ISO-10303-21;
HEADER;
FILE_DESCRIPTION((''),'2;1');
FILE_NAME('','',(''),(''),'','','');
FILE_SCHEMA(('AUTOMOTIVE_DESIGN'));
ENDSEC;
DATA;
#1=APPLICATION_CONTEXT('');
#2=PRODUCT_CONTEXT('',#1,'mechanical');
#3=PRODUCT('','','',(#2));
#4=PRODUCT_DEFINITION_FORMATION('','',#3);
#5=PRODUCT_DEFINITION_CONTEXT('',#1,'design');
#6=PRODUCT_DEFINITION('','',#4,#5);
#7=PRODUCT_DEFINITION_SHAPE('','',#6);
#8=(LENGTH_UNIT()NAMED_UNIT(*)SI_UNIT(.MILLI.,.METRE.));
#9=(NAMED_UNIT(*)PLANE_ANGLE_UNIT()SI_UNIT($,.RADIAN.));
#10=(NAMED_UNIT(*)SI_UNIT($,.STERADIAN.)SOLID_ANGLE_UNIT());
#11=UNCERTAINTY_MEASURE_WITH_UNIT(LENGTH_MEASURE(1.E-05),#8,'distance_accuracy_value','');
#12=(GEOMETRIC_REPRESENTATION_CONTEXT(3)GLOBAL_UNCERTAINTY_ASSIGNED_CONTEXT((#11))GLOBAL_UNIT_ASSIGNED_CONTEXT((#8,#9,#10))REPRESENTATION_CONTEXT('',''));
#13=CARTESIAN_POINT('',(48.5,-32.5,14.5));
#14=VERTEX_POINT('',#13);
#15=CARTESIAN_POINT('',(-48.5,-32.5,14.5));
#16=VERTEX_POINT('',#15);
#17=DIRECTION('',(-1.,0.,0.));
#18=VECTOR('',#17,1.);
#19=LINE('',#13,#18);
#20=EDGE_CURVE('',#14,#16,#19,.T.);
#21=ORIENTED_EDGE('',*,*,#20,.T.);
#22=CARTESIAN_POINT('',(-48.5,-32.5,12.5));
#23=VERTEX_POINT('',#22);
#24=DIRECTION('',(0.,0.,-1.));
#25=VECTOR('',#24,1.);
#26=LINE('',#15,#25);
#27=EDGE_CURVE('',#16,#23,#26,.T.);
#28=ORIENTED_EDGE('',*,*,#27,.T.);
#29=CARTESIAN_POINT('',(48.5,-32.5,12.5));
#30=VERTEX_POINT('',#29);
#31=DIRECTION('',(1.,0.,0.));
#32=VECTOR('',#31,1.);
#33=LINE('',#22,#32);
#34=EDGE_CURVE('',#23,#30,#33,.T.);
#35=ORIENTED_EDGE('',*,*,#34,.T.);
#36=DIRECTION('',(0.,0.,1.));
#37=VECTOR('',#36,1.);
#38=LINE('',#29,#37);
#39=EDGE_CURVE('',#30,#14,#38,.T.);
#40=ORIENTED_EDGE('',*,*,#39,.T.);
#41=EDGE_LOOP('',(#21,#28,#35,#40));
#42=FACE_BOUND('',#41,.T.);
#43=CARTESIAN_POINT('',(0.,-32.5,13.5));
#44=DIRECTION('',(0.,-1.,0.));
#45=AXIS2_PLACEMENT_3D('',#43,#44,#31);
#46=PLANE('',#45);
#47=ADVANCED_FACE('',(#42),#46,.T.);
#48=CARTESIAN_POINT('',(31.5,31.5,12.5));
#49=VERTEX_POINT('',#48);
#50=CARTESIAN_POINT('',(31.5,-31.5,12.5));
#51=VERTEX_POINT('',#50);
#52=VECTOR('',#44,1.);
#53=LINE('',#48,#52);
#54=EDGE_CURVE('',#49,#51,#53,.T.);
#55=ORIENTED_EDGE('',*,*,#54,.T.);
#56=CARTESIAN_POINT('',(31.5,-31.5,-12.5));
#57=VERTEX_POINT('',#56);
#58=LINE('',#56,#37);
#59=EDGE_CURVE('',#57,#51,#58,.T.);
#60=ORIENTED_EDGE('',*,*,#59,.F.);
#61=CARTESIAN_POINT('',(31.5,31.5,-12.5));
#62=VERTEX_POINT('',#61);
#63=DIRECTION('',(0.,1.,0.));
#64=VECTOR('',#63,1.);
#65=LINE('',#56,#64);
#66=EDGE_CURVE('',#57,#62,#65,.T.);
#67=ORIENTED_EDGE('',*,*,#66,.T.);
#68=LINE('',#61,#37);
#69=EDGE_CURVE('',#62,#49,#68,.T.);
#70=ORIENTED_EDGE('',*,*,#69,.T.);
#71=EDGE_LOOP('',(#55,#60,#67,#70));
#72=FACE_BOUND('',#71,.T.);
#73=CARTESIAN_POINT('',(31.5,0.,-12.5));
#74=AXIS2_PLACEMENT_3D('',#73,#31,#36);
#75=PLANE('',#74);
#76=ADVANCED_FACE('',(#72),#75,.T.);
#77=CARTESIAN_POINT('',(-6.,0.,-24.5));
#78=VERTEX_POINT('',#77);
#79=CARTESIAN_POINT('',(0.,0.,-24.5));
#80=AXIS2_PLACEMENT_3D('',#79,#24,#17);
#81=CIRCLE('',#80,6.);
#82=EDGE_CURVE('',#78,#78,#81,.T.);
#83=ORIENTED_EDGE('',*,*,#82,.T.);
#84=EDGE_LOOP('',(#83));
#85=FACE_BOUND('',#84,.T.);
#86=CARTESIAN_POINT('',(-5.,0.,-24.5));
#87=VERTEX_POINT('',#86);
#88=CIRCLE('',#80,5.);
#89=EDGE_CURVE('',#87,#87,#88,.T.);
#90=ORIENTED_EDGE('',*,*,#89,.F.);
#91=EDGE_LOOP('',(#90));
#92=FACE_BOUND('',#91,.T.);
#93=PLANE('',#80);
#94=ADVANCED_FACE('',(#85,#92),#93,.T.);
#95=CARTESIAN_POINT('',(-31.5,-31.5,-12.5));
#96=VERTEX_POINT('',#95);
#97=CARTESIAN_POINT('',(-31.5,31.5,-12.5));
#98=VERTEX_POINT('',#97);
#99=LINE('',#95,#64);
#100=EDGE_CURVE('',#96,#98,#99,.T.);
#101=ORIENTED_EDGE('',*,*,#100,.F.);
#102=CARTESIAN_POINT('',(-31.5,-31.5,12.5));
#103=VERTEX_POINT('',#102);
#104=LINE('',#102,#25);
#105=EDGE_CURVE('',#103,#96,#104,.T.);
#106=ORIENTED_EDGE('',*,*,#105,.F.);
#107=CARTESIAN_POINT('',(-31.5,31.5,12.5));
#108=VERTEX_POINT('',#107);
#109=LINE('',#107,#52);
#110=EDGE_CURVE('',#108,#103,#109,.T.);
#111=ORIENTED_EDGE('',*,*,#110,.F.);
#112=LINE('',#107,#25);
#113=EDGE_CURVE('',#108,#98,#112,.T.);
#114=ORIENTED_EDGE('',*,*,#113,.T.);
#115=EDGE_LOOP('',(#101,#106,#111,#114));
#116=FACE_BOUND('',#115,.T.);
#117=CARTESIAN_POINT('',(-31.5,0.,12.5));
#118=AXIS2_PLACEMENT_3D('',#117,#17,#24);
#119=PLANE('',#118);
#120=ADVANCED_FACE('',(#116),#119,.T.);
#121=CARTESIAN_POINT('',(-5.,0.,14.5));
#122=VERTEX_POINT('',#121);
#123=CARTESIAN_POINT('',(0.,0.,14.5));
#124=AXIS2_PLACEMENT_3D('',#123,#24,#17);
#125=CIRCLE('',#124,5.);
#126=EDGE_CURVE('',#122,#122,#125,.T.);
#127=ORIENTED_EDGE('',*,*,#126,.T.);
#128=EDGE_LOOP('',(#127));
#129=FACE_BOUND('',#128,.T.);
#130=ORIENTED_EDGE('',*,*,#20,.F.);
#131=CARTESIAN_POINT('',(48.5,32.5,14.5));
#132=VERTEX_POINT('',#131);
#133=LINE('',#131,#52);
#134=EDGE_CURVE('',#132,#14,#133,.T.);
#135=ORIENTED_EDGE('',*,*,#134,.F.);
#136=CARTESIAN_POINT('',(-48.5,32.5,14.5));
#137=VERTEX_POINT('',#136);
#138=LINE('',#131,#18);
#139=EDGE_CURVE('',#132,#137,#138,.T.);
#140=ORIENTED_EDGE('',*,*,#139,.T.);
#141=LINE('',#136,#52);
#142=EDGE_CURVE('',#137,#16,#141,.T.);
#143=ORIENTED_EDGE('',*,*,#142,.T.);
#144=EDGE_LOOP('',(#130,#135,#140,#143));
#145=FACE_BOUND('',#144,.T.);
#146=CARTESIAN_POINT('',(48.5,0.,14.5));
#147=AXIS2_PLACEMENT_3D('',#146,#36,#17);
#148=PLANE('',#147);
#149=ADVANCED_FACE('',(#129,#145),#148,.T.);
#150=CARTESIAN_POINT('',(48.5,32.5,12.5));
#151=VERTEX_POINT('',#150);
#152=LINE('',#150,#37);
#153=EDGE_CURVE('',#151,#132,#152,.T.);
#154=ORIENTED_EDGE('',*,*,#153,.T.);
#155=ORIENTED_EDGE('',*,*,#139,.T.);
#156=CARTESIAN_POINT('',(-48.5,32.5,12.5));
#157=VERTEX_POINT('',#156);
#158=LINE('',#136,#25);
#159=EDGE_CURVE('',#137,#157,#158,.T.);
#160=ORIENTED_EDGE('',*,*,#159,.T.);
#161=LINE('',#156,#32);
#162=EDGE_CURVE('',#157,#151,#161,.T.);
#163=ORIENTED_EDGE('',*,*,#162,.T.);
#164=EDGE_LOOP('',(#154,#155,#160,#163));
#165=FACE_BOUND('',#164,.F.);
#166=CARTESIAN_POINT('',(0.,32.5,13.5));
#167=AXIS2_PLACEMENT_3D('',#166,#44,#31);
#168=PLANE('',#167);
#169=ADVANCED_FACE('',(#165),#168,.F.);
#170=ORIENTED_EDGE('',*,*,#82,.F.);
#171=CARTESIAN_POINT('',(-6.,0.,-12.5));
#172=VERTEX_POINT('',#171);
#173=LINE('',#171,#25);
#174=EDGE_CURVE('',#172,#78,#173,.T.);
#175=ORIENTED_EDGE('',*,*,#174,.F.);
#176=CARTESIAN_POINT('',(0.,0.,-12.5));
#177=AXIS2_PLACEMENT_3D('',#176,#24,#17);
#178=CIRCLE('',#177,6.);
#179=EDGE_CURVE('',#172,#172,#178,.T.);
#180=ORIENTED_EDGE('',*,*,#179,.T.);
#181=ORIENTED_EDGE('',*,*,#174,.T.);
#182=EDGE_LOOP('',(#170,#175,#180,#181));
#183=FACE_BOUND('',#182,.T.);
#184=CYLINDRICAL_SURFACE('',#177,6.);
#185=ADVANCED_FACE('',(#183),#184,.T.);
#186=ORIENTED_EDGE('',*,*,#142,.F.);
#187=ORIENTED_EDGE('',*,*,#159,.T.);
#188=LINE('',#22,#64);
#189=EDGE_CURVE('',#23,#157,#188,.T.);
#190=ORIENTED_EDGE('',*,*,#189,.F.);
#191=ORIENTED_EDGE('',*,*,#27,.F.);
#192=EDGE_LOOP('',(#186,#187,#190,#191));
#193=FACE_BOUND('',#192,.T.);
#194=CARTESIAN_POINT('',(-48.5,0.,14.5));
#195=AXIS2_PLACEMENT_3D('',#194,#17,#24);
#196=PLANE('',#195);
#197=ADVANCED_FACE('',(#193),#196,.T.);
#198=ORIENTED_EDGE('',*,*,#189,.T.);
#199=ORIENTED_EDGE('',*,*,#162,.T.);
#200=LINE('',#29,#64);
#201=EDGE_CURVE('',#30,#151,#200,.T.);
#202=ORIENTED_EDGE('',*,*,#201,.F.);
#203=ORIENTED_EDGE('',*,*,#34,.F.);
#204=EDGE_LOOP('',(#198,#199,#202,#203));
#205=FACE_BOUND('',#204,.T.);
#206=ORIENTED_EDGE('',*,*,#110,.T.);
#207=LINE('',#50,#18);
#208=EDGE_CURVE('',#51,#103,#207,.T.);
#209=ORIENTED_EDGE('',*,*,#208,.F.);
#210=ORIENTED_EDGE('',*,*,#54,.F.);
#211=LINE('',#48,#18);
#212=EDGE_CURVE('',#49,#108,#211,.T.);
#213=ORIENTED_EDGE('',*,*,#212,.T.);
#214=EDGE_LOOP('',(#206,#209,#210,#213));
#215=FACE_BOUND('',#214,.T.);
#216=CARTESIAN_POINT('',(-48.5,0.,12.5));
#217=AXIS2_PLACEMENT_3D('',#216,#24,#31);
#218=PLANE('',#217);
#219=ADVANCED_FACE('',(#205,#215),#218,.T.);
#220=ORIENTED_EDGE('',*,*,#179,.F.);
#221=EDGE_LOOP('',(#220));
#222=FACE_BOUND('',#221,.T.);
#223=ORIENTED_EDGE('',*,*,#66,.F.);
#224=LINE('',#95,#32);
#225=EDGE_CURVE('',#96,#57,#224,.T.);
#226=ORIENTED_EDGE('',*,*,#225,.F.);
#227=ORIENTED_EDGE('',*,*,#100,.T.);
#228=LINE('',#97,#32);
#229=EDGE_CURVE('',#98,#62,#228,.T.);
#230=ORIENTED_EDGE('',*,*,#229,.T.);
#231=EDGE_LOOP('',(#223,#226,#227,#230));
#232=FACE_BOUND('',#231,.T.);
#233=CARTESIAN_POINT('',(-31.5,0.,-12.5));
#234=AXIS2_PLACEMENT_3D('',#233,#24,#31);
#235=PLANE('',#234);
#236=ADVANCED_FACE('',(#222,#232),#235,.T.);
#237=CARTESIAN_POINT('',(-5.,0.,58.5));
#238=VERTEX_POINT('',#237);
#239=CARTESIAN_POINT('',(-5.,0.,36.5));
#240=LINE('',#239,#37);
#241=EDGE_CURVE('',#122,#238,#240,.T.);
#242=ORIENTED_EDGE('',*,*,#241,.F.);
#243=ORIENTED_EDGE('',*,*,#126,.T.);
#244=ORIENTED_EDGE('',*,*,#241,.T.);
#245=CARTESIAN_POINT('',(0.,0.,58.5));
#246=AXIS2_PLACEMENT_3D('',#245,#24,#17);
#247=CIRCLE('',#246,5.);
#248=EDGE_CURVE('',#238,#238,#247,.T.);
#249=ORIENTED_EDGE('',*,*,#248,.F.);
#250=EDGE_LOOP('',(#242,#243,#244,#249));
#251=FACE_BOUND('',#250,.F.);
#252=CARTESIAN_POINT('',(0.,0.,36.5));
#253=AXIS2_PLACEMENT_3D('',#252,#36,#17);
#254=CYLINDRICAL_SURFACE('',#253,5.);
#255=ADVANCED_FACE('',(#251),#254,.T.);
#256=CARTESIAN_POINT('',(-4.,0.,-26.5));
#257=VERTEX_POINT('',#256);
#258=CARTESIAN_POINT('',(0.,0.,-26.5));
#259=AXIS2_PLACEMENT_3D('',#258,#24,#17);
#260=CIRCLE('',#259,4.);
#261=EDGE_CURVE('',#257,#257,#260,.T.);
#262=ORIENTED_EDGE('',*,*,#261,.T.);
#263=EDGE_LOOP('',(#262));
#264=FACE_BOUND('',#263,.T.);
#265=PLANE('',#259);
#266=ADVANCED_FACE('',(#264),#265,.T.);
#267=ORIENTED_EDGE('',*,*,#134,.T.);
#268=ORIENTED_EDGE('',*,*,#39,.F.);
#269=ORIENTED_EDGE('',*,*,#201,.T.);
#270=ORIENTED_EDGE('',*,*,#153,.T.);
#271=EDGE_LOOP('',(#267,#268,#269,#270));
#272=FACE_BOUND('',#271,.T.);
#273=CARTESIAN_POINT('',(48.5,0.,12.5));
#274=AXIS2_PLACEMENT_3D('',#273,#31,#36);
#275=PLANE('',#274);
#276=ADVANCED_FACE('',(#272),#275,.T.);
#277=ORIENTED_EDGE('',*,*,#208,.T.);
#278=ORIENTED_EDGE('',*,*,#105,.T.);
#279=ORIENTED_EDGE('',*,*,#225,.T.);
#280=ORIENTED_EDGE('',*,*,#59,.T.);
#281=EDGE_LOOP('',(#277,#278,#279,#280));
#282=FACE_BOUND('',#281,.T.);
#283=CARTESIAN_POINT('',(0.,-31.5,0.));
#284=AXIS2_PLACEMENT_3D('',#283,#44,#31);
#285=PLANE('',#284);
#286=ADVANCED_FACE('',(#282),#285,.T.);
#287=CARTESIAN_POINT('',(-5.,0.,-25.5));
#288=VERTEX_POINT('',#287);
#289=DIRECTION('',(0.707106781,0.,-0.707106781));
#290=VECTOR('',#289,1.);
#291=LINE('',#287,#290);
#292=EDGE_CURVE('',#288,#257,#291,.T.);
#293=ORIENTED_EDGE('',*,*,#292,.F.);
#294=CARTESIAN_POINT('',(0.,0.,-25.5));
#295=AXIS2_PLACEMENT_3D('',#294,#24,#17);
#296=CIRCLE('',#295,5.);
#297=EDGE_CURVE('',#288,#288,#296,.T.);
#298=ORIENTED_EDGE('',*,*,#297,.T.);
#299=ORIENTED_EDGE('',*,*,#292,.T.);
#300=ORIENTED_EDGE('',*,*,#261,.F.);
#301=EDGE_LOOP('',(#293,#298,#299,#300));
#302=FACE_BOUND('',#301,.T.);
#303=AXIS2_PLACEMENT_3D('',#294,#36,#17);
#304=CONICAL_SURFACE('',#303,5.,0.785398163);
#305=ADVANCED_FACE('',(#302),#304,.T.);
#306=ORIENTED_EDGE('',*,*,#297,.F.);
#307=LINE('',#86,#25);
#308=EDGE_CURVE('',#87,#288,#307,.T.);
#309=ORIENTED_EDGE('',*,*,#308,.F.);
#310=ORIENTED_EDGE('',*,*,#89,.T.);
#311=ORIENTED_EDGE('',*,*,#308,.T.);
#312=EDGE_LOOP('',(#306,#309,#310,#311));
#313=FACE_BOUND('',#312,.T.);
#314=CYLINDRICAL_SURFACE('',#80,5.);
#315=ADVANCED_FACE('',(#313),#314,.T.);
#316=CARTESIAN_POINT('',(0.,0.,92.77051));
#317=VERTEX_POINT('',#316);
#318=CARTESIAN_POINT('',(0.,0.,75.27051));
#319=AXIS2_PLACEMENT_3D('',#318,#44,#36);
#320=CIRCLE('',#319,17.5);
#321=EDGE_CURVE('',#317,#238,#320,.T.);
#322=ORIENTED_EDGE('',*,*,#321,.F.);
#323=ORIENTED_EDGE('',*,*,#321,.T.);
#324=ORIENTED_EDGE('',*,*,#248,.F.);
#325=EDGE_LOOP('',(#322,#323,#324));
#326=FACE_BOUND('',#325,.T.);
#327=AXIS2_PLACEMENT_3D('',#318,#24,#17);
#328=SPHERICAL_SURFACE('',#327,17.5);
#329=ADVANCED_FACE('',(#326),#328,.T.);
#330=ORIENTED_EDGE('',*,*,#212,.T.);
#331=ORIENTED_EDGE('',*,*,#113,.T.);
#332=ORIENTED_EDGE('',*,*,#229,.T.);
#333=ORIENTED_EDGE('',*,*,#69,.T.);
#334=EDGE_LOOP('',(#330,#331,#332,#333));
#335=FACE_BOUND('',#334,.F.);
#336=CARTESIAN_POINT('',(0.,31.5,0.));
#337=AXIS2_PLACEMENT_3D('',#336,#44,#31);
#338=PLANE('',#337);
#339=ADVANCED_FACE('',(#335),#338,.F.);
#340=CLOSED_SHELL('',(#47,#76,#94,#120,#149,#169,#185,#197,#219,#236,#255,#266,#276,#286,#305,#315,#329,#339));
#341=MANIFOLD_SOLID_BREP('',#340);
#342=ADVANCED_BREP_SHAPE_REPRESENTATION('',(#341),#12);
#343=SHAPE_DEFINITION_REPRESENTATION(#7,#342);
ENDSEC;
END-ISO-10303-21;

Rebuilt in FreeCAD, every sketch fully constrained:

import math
import FreeCAD as App
import Part
import Sketcher
from FreeCAD import Vector


def edges_at(feature, points):
    """Names of the edges that pass closest to the given points."""
    edges = feature.Shape.Edges
    near = lambda p: min(range(len(edges)), key=lambda i: edges[i].distToShape(Part.Vertex(*p))[0])
    return sorted({f"Edge{near(p) + 1}" for p in points})

doc = App.newDocument("Part")
body = doc.addObject("PartDesign::Body", "Body")

sketch1 = body.newObject("Sketcher::SketchObject", "Sketch")
sketch1.AttachmentSupport = (doc.getObject("XZ_Plane"), [""])
sketch1.MapMode = "FlatFace"
sketch1.addGeometry([
    Part.LineSegment(Vector(-5, 58, 0), Vector(-5, 14, 0)),
    Part.LineSegment(Vector(-5, 14, 0), Vector(0, 14, 0)),
    Part.LineSegment(Vector(0, 14, 0), Vector(0, 93, 0)),
    Part.ArcOfCircle(Part.Circle(Vector(0, 75, 0), Vector(0, 0, 1), 18), math.radians(90), math.radians(253)),
], False)
sketch1.addConstraint([
    Sketcher.Constraint("Coincident", 0, 2, 1, 1),
    Sketcher.Constraint("Coincident", 1, 2, 2, 1),
    Sketcher.Constraint("Coincident", 2, 2, 3, 1),
    Sketcher.Constraint("Coincident", 3, 2, 0, 1),
    Sketcher.Constraint("Vertical", 0),
    Sketcher.Constraint("Horizontal", 1),
    Sketcher.Constraint("Vertical", 2),
    Sketcher.Constraint("PointOnObject", 3, 3, -2),
    Sketcher.Constraint("PointOnObject", 1, 2, -2),
    Sketcher.Constraint("Radius", 3, 17.5),
    Sketcher.Constraint("DistanceX", 1, 1, 1, 2, 5.0),
    Sketcher.Constraint("DistanceY", 0, 2, 0, 1, 44.0),
    Sketcher.Constraint("DistanceY", -1, 1, 0, 2, 14.5),
])
revolution = body.newObject("PartDesign::Revolution", "Revolution")
revolution.Profile = sketch1
revolution.ReferenceAxis = (sketch1, ["V_Axis"])
revolution.Angle = 360

sketch2 = body.newObject("Sketcher::SketchObject", "Sketch001")
sketch2.AttachmentSupport = (doc.getObject("XZ_Plane"), [""])
sketch2.MapMode = "FlatFace"
sketch2.addGeometry([
    Part.LineSegment(Vector(48.5, 12.5, 0), Vector(48.5, 14.5, 0)),
    Part.LineSegment(Vector(48.5, 14.5, 0), Vector(-48.5, 14.5, 0)),
    Part.LineSegment(Vector(-48.5, 14.5, 0), Vector(-48.5, 12.5, 0)),
    Part.LineSegment(Vector(-48.5, 12.5, 0), Vector(48.5, 12.5, 0)),
], False)
sketch2.addConstraint([
    Sketcher.Constraint("Coincident", 0, 2, 1, 1),
    Sketcher.Constraint("Coincident", 1, 2, 2, 1),
    Sketcher.Constraint("Coincident", 2, 2, 3, 1),
    Sketcher.Constraint("Coincident", 3, 2, 0, 1),
    Sketcher.Constraint("Vertical", 0),
    Sketcher.Constraint("Horizontal", 1),
    Sketcher.Constraint("Vertical", 2),
    Sketcher.Constraint("Horizontal", 3),
    Sketcher.Constraint("DistanceX", 1, 2, 1, 1, 97.0),
    Sketcher.Constraint("DistanceY", 0, 1, 0, 2, 2.0),
    Sketcher.Constraint("DistanceX", -1, 1, 0, 2, 48.5),
    Sketcher.Constraint("DistanceY", -1, 1, 0, 2, 14.5),
])
pad1 = body.newObject("PartDesign::Pad", "Pad")
pad1.Profile = sketch2
pad1.Length = 65
pad1.Midplane = True
body2 = doc.addObject("PartDesign::Body", "Body001")

sketch3 = body2.newObject("Sketcher::SketchObject", "Sketch002")
sketch3.AttachmentSupport = (doc.getObject("XZ_Plane001"), [""])
sketch3.MapMode = "FlatFace"
sketch3.addGeometry([
    Part.LineSegment(Vector(0, -26.5, 0), Vector(0, -12.5, 0)),
    Part.LineSegment(Vector(0, -12.5, 0), Vector(-6, -12.5, 0)),
    Part.LineSegment(Vector(-6, -12.5, 0), Vector(-6, -24.5, 0)),
    Part.LineSegment(Vector(-6, -24.5, 0), Vector(-5, -24.5, 0)),
    Part.LineSegment(Vector(-5, -24.5, 0), Vector(-5, -26.5, 0)),
    Part.LineSegment(Vector(-5, -26.5, 0), Vector(0, -26.5, 0)),
], False)
sketch3.addConstraint([
    Sketcher.Constraint("Coincident", 0, 2, 1, 1),
    Sketcher.Constraint("Coincident", 1, 2, 2, 1),
    Sketcher.Constraint("Coincident", 2, 2, 3, 1),
    Sketcher.Constraint("Coincident", 3, 2, 4, 1),
    Sketcher.Constraint("Coincident", 4, 2, 5, 1),
    Sketcher.Constraint("Coincident", 5, 2, 0, 1),
    Sketcher.Constraint("Vertical", 0),
    Sketcher.Constraint("Horizontal", 1),
    Sketcher.Constraint("Vertical", 2),
    Sketcher.Constraint("Horizontal", 3),
    Sketcher.Constraint("Vertical", 4),
    Sketcher.Constraint("Horizontal", 5),
    Sketcher.Constraint("PointOnObject", 0, 2, -2),
    Sketcher.Constraint("DistanceX", 1, 2, 1, 1, 6.0),
    Sketcher.Constraint("DistanceX", 3, 1, 3, 2, 1.0),
    Sketcher.Constraint("DistanceY", 0, 1, 0, 2, 14.0),
    Sketcher.Constraint("DistanceY", 2, 2, 2, 1, 12.0),
    Sketcher.Constraint("DistanceY", 0, 2, -1, 1, 12.5),
])
revolution2 = body2.newObject("PartDesign::Revolution", "Revolution001")
revolution2.Profile = sketch3
revolution2.ReferenceAxis = (sketch3, ["V_Axis"])
revolution2.Angle = 360
doc.recompute()

chamfer = body2.newObject("PartDesign::Chamfer", "Chamfer")
chamfer.Base = (revolution2, edges_at(revolution2, [(5, 0, -26.5)]))
chamfer.Size = 1
body.AllowCompound = True
doc.recompute()

boolean = body.newObject("PartDesign::Boolean", "Boolean")
boolean.Type = "Fuse"
boolean.addObjects([body2])

sketch4 = body.newObject("Sketcher::SketchObject", "Sketch003")
sketch4.AttachmentSupport = (doc.getObject("XZ_Plane"), [""])
sketch4.MapMode = "FlatFace"
sketch4.addGeometry([
    Part.LineSegment(Vector(32, -12, 0), Vector(32, 12, 0)),
    Part.LineSegment(Vector(32, 12, 0), Vector(-32, 12, 0)),
    Part.LineSegment(Vector(-32, 12, 0), Vector(-32, -12, 0)),
    Part.LineSegment(Vector(-32, -12, 0), Vector(32, -12, 0)),
], False)
sketch4.addConstraint([
    Sketcher.Constraint("Coincident", 0, 2, 1, 1),
    Sketcher.Constraint("Coincident", 1, 2, 2, 1),
    Sketcher.Constraint("Coincident", 2, 2, 3, 1),
    Sketcher.Constraint("Coincident", 3, 2, 0, 1),
    Sketcher.Constraint("Vertical", 0),
    Sketcher.Constraint("Horizontal", 1),
    Sketcher.Constraint("Vertical", 2),
    Sketcher.Constraint("Horizontal", 3),
    Sketcher.Constraint("Symmetric", 0, 2, 2, 2, -1, 1),
    Sketcher.Constraint("DistanceX", 1, 2, 1, 1, 63.0),
    Sketcher.Constraint("DistanceY", 0, 1, 0, 2, 25.0),
])
pad2 = body.newObject("PartDesign::Pad", "Pad001")
pad2.Profile = sketch4
pad2.Length = 63
pad2.Midplane = True

doc.recompute()
